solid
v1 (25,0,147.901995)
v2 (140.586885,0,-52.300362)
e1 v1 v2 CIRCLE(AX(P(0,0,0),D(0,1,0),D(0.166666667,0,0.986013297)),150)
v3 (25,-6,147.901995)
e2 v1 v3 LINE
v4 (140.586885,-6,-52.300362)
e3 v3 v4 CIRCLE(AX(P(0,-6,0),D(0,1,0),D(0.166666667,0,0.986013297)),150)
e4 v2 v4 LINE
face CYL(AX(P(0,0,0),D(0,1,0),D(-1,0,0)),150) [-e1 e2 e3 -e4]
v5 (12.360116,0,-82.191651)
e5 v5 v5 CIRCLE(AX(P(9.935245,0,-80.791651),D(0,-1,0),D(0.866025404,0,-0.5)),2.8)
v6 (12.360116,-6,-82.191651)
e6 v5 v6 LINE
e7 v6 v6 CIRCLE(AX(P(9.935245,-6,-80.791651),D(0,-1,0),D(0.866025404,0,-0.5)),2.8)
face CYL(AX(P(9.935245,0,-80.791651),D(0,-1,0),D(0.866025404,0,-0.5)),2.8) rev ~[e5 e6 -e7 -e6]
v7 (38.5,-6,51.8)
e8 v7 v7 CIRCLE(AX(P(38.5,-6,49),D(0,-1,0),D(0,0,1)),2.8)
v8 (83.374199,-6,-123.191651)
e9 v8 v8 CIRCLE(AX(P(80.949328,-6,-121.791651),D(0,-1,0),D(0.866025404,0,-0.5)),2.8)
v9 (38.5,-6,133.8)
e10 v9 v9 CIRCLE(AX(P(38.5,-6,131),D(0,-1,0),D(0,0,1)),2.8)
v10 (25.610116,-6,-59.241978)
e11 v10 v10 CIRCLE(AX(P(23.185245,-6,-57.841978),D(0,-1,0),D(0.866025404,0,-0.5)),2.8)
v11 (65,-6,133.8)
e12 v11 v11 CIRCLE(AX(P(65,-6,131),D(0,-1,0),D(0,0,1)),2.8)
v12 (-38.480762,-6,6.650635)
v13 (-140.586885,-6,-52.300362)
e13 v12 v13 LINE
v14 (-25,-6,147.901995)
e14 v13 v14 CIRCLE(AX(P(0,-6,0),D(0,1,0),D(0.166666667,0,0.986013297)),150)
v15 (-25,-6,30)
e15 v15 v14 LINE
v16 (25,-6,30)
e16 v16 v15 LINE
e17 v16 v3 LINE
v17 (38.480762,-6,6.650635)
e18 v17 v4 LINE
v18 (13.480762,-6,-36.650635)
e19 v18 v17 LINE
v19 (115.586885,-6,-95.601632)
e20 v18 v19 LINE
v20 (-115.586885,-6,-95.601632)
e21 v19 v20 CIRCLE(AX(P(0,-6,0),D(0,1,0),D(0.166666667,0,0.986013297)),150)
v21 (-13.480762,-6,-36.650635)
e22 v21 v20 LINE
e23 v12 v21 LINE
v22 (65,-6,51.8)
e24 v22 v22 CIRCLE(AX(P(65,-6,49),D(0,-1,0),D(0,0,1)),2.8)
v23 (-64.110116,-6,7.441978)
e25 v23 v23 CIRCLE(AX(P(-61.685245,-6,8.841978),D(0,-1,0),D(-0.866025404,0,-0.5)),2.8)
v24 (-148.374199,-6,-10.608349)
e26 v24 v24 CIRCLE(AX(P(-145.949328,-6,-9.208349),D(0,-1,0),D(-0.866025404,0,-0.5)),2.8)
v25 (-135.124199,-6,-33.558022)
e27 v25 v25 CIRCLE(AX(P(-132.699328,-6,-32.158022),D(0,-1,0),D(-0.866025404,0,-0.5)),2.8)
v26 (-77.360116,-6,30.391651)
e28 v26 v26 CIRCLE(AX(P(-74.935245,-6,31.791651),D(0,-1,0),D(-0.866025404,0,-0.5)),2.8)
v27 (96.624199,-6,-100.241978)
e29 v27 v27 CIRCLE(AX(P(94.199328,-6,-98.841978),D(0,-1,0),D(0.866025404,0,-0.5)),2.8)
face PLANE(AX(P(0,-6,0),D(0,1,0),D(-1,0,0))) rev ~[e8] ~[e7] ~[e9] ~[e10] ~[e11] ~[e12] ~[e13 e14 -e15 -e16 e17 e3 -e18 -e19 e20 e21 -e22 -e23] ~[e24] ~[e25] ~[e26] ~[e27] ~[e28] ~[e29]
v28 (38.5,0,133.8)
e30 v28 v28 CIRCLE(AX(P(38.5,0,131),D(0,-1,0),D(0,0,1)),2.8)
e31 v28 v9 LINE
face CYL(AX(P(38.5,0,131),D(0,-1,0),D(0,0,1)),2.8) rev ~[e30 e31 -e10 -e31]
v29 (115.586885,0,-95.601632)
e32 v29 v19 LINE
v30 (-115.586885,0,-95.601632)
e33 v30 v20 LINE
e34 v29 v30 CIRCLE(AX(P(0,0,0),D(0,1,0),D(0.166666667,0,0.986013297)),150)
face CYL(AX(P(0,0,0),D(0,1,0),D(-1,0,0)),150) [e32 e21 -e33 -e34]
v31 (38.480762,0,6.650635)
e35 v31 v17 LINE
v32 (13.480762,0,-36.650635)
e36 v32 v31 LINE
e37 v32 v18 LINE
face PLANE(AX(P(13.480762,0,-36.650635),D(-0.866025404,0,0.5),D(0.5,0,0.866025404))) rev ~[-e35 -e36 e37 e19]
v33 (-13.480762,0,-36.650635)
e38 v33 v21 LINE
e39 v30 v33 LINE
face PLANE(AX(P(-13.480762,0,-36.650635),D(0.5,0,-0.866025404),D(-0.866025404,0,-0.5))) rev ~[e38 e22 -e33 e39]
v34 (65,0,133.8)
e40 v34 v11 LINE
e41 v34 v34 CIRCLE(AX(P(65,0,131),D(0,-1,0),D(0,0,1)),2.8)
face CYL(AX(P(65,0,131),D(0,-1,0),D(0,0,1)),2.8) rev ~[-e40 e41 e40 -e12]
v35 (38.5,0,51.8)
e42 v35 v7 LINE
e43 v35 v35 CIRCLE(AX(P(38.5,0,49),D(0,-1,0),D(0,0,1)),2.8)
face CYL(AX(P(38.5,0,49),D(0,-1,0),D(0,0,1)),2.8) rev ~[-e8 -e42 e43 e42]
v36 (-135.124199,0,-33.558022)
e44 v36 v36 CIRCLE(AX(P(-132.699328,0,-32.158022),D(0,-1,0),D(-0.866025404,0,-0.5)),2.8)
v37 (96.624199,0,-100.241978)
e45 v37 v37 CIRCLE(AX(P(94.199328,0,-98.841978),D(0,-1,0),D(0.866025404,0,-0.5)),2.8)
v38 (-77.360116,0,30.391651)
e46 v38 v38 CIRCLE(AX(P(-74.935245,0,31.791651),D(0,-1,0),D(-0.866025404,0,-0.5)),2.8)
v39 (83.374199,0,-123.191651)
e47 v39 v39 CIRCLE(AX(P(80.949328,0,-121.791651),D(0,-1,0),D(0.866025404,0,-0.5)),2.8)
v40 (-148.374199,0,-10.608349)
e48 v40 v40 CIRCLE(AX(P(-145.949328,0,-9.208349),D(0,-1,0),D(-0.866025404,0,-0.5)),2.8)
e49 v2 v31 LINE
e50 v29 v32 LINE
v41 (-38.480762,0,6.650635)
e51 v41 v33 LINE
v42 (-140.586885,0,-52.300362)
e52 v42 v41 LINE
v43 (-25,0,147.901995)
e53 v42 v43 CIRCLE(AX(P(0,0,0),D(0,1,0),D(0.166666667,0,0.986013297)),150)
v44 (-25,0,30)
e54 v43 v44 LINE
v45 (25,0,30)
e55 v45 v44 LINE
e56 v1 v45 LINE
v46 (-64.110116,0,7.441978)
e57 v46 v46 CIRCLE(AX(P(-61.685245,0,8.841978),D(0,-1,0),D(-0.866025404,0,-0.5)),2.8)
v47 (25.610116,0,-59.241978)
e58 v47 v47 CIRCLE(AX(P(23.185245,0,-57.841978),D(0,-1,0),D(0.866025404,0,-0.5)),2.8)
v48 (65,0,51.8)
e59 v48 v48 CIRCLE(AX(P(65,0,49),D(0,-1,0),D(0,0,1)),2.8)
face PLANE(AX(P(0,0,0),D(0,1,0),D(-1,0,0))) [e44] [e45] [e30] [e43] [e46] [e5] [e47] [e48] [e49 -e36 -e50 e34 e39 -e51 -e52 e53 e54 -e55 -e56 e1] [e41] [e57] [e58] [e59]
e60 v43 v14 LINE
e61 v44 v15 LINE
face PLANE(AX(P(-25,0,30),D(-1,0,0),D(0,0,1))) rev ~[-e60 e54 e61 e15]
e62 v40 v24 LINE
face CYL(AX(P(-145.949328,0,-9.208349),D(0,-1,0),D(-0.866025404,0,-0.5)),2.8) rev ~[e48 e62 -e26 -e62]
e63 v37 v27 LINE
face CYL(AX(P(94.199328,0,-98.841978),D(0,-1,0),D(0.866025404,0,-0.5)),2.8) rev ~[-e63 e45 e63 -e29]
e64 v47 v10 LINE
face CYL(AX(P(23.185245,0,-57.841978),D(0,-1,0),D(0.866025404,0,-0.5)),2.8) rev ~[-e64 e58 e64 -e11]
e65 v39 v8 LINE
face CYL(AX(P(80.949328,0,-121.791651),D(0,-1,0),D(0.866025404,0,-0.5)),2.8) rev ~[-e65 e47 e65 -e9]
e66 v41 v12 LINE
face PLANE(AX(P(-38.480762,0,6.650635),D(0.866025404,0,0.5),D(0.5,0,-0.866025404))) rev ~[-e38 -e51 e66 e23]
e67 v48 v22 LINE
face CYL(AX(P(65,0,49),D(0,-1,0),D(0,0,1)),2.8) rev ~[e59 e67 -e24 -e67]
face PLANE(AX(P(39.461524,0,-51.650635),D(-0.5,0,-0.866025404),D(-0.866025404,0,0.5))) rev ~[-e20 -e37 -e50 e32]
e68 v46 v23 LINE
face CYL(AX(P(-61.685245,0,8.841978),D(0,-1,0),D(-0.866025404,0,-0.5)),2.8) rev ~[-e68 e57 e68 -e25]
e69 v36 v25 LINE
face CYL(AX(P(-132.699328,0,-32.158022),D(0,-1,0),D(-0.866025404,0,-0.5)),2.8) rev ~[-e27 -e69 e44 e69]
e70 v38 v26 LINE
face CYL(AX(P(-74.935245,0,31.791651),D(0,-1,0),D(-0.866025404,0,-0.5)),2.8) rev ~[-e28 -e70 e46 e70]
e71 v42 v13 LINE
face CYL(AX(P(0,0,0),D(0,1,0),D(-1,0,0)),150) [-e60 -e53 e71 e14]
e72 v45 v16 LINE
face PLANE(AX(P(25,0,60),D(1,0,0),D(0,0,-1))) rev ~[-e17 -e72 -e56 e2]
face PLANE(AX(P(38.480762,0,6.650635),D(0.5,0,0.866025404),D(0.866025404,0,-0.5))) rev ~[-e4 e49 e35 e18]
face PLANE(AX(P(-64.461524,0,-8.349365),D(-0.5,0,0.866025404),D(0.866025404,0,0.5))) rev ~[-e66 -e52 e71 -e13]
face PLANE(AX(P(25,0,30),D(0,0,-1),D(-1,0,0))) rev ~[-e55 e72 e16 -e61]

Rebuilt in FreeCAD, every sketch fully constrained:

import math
import FreeCAD as App
import Part
import Sketcher

V = App.Vector

doc = App.newDocument("Part")
body = doc.addObject("PartDesign::Body", "Body")

# Sketch on XZ plane
sketch1 = body.newObject("Sketcher::SketchObject", "Sketch")
sketch1.AttachmentSupport = (doc.getObject("XZ_Plane"), [""])
sketch1.MapMode = "FlatFace"
sketch1.addGeometry(Part.Circle(V(0, 0, 0), V(0, 0, 1), 150), False)
sketch1.addConstraint([
    Sketcher.Constraint("Coincident", 0, 3, -1, 1),
    Sketcher.Constraint("Diameter", 0, 300.0),
])
pad1 = body.newObject("PartDesign::Pad", "Pad")
pad1.Profile = sketch1
pad1.Length = 6

# Sketch on XZ plane
sketch2 = body.newObject("Sketcher::SketchObject", "Sketch001")
sketch2.AttachmentSupport = (doc.getObject("XZ_Plane"), [""])
sketch2.MapMode = "FlatFace"
sketch2.addGeometry([
    Part.Circle(V(65, 131, 0), V(0, 0, 1), 2.8),
    Part.Circle(V(38.5, 131, 0), V(0, 0, 1), 2.8),
    Part.Circle(V(65, 49, 0), V(0, 0, 1), 2.8),
    Part.Circle(V(38.5, 49, 0), V(0, 0, 1), 2.8),
], False)
sketch2.addConstraint([
    Sketcher.Constraint("Equal", 0, 1),
    Sketcher.Constraint("Equal", 1, 2),
    Sketcher.Constraint("Equal", 2, 3),
    Sketcher.Constraint("Horizontal", 0, 3, 1, 3),
    Sketcher.Constraint("Horizontal", 2, 3, 3, 3),
    Sketcher.Constraint("Vertical", 0, 3, 2, 3),
    Sketcher.Constraint("Vertical", 1, 3, 3, 3),
    Sketcher.Constraint("Diameter", 0, 5.6),
    Sketcher.Constraint("DistanceX", -1, 1, 0, 3, 65.0),
    Sketcher.Constraint("DistanceY", -1, 1, 0, 3, 131.0),
    Sketcher.Constraint("DistanceY", -1, 1, 2, 3, 49.0),
    Sketcher.Constraint("DistanceX", -1, 1, 1, 3, 38.5),
])
doc.recompute()
hole = body.newObject("PartDesign::Hole", "Hole")
hole.Profile = sketch2
hole.ThreadType = "None"
hole.Diameter = 5.6
hole.DepthType = "ThroughAll"
hole.Reversed = True

# Sketch on XZ plane
sketch3 = body.newObject("Sketcher::SketchObject", "Sketch002")
sketch3.AttachmentSupport = (doc.getObject("XZ_Plane"), [""])
sketch3.MapMode = "FlatFace"
sketch3.addGeometry([
    Part.LineSegment(V(-25, 30, 0), V(-25, 148, 0)),
    Part.ArcOfCircle(Part.Circle(V(0, 0, 0), V(0, 0, 1), 150), math.radians(80.41), math.radians(99.59)),
    Part.LineSegment(V(25, 148, 0), V(25, 30, 0)),
    Part.LineSegment(V(25, 30, 0), V(-25, 30, 0)),
], False)
sketch3.addConstraint([
    Sketcher.Constraint("Coincident", 0, 2, 1, 2),
    Sketcher.Constraint("Coincident", 1, 1, 2, 1),
    Sketcher.Constraint("Coincident", 2, 2, 3, 1),
    Sketcher.Constraint("Coincident", 3, 2, 0, 1),
    Sketcher.Constraint("Vertical", 0),
    Sketcher.Constraint("Vertical", 2),
    Sketcher.Constraint("Horizontal", 3),
    Sketcher.Constraint("Coincident", 1, 3, -1, 1),
    Sketcher.Constraint("Horizontal", 0, 2, 1, 1),
    Sketcher.Constraint("Radius", 1, 150.0),
    Sketcher.Constraint("DistanceX", 3, 2, 3, 1, 50.0),
    Sketcher.Constraint("DistanceY", -1, 1, 2, 2, 30.0),
])
pocket1 = body.newObject("PartDesign::Pocket", "Pocket")
pocket1.Profile = sketch3
pocket1.Length = 6
pocket1.Reversed = True
doc.recompute()

polarpattern = body.newObject("PartDesign::PolarPattern", "PolarPattern")
polarpattern.Originals = [hole, pocket1]
polarpattern.Axis = (doc.getObject("Y_Axis"), [""])
polarpattern.Angle = 360
polarpattern.Occurrences = 3
body.Tip = polarpattern

doc.recompute()
